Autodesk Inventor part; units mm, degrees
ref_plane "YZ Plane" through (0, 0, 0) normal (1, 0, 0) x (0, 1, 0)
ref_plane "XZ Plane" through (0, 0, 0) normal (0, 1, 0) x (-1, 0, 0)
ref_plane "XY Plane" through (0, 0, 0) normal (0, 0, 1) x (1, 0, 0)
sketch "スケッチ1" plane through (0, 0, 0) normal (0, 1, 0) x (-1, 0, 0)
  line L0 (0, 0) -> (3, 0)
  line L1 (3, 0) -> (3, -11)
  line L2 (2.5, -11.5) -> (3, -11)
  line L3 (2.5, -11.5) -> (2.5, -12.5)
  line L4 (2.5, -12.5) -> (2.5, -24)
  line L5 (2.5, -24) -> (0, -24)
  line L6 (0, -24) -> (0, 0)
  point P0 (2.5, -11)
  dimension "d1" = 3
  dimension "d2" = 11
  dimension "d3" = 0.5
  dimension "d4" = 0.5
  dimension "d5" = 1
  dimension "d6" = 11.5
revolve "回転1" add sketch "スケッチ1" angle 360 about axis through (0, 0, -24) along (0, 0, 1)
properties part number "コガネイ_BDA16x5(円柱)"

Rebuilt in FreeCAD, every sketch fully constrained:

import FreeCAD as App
import Part
import Sketcher
from FreeCAD import Vector
Q = App.Units.Quantity


def add_polygon(sketch, points):
    """Adds a closed chain of lines whose ends are joined by coincident constraints."""
    first, n = sketch.GeometryCount, len(points)
    for a, b in zip(points, points[1:] + points[:1]):
        sketch.addGeometry(Part.LineSegment(App.Vector(*a, 0), App.Vector(*b, 0)), False)
    for i in range(n):
        sketch.addConstraint(Sketcher.Constraint("Coincident", first + i, 2, first + (i + 1) % n, 1))

doc = App.newDocument("Part")
params = doc.addObject("Spreadsheet::Sheet", "Params")
for row, (alias, value) in enumerate([
    ("sketch1_width", "3 mm"),
    ("sketch1_height", "11 mm"),
    ("sketch1_height2", "24 mm"),
    ("revolution_angle", "360 deg"),
], start=1):
    params.set(f"A{row}", alias)
    params.set(f"B{row}", "=" + value)
    params.setAlias(f"B{row}", alias)

body = doc.addObject("PartDesign::Body", "Body")

sketch1 = doc.addObject("Sketcher::SketchObject", "Sketch")
body.addObject(sketch1)
sketch1.AttachmentSupport = (doc.XZ_Plane, [""])
sketch1.MapMode = "FlatFace"
add_polygon(sketch1, [(-3, 0), (0, 0), (0, -24), (-2.5, -24), (-2.5, -11.5), (-3, -11)])
sketch1.addConstraint(Sketcher.Constraint("Horizontal", 0))
sketch1.addConstraint(Sketcher.Constraint("Vertical", 1))
sketch1.addConstraint(Sketcher.Constraint("Horizontal", 2))
sketch1.addConstraint(Sketcher.Constraint("Vertical", 3))
sketch1.addConstraint(Sketcher.Constraint("Vertical", 5))
sketch1.addConstraint(Sketcher.Constraint("Coincident", 0, 2, -1, 1))
sketch1.addConstraint(Sketcher.Constraint("DistanceX", 0, 1, 0, 2, Q("3 mm")))
sketch1.addConstraint(Sketcher.Constraint("DistanceY", 5, 1, 5, 2, Q("11 mm")))
sketch1.addConstraint(Sketcher.Constraint("DistanceY", 3, 2, -1, 1, Q("11.5 mm")))
sketch1.addConstraint(Sketcher.Constraint("DistanceX", 4, 2, 3, 2, Q("0.5 mm")))
sketch1.addConstraint(Sketcher.Constraint("DistanceY", 1, 2, 1, 1, Q("24 mm")))
sketch1.setExpression("Constraints[12]", "Params.sketch1_width")
sketch1.setExpression("Constraints[13]", "Params.sketch1_height")
sketch1.setExpression("Constraints[16]", "Params.sketch1_height2")
revolution = doc.addObject("PartDesign::Revolution", "Revolution")
body.addObject(revolution)
revolution.Profile = sketch1
revolution.ReferenceAxis = (sketch1, ["V_Axis"])
revolution.setExpression("Angle", "Params.revolution_angle")

doc.recompute()
